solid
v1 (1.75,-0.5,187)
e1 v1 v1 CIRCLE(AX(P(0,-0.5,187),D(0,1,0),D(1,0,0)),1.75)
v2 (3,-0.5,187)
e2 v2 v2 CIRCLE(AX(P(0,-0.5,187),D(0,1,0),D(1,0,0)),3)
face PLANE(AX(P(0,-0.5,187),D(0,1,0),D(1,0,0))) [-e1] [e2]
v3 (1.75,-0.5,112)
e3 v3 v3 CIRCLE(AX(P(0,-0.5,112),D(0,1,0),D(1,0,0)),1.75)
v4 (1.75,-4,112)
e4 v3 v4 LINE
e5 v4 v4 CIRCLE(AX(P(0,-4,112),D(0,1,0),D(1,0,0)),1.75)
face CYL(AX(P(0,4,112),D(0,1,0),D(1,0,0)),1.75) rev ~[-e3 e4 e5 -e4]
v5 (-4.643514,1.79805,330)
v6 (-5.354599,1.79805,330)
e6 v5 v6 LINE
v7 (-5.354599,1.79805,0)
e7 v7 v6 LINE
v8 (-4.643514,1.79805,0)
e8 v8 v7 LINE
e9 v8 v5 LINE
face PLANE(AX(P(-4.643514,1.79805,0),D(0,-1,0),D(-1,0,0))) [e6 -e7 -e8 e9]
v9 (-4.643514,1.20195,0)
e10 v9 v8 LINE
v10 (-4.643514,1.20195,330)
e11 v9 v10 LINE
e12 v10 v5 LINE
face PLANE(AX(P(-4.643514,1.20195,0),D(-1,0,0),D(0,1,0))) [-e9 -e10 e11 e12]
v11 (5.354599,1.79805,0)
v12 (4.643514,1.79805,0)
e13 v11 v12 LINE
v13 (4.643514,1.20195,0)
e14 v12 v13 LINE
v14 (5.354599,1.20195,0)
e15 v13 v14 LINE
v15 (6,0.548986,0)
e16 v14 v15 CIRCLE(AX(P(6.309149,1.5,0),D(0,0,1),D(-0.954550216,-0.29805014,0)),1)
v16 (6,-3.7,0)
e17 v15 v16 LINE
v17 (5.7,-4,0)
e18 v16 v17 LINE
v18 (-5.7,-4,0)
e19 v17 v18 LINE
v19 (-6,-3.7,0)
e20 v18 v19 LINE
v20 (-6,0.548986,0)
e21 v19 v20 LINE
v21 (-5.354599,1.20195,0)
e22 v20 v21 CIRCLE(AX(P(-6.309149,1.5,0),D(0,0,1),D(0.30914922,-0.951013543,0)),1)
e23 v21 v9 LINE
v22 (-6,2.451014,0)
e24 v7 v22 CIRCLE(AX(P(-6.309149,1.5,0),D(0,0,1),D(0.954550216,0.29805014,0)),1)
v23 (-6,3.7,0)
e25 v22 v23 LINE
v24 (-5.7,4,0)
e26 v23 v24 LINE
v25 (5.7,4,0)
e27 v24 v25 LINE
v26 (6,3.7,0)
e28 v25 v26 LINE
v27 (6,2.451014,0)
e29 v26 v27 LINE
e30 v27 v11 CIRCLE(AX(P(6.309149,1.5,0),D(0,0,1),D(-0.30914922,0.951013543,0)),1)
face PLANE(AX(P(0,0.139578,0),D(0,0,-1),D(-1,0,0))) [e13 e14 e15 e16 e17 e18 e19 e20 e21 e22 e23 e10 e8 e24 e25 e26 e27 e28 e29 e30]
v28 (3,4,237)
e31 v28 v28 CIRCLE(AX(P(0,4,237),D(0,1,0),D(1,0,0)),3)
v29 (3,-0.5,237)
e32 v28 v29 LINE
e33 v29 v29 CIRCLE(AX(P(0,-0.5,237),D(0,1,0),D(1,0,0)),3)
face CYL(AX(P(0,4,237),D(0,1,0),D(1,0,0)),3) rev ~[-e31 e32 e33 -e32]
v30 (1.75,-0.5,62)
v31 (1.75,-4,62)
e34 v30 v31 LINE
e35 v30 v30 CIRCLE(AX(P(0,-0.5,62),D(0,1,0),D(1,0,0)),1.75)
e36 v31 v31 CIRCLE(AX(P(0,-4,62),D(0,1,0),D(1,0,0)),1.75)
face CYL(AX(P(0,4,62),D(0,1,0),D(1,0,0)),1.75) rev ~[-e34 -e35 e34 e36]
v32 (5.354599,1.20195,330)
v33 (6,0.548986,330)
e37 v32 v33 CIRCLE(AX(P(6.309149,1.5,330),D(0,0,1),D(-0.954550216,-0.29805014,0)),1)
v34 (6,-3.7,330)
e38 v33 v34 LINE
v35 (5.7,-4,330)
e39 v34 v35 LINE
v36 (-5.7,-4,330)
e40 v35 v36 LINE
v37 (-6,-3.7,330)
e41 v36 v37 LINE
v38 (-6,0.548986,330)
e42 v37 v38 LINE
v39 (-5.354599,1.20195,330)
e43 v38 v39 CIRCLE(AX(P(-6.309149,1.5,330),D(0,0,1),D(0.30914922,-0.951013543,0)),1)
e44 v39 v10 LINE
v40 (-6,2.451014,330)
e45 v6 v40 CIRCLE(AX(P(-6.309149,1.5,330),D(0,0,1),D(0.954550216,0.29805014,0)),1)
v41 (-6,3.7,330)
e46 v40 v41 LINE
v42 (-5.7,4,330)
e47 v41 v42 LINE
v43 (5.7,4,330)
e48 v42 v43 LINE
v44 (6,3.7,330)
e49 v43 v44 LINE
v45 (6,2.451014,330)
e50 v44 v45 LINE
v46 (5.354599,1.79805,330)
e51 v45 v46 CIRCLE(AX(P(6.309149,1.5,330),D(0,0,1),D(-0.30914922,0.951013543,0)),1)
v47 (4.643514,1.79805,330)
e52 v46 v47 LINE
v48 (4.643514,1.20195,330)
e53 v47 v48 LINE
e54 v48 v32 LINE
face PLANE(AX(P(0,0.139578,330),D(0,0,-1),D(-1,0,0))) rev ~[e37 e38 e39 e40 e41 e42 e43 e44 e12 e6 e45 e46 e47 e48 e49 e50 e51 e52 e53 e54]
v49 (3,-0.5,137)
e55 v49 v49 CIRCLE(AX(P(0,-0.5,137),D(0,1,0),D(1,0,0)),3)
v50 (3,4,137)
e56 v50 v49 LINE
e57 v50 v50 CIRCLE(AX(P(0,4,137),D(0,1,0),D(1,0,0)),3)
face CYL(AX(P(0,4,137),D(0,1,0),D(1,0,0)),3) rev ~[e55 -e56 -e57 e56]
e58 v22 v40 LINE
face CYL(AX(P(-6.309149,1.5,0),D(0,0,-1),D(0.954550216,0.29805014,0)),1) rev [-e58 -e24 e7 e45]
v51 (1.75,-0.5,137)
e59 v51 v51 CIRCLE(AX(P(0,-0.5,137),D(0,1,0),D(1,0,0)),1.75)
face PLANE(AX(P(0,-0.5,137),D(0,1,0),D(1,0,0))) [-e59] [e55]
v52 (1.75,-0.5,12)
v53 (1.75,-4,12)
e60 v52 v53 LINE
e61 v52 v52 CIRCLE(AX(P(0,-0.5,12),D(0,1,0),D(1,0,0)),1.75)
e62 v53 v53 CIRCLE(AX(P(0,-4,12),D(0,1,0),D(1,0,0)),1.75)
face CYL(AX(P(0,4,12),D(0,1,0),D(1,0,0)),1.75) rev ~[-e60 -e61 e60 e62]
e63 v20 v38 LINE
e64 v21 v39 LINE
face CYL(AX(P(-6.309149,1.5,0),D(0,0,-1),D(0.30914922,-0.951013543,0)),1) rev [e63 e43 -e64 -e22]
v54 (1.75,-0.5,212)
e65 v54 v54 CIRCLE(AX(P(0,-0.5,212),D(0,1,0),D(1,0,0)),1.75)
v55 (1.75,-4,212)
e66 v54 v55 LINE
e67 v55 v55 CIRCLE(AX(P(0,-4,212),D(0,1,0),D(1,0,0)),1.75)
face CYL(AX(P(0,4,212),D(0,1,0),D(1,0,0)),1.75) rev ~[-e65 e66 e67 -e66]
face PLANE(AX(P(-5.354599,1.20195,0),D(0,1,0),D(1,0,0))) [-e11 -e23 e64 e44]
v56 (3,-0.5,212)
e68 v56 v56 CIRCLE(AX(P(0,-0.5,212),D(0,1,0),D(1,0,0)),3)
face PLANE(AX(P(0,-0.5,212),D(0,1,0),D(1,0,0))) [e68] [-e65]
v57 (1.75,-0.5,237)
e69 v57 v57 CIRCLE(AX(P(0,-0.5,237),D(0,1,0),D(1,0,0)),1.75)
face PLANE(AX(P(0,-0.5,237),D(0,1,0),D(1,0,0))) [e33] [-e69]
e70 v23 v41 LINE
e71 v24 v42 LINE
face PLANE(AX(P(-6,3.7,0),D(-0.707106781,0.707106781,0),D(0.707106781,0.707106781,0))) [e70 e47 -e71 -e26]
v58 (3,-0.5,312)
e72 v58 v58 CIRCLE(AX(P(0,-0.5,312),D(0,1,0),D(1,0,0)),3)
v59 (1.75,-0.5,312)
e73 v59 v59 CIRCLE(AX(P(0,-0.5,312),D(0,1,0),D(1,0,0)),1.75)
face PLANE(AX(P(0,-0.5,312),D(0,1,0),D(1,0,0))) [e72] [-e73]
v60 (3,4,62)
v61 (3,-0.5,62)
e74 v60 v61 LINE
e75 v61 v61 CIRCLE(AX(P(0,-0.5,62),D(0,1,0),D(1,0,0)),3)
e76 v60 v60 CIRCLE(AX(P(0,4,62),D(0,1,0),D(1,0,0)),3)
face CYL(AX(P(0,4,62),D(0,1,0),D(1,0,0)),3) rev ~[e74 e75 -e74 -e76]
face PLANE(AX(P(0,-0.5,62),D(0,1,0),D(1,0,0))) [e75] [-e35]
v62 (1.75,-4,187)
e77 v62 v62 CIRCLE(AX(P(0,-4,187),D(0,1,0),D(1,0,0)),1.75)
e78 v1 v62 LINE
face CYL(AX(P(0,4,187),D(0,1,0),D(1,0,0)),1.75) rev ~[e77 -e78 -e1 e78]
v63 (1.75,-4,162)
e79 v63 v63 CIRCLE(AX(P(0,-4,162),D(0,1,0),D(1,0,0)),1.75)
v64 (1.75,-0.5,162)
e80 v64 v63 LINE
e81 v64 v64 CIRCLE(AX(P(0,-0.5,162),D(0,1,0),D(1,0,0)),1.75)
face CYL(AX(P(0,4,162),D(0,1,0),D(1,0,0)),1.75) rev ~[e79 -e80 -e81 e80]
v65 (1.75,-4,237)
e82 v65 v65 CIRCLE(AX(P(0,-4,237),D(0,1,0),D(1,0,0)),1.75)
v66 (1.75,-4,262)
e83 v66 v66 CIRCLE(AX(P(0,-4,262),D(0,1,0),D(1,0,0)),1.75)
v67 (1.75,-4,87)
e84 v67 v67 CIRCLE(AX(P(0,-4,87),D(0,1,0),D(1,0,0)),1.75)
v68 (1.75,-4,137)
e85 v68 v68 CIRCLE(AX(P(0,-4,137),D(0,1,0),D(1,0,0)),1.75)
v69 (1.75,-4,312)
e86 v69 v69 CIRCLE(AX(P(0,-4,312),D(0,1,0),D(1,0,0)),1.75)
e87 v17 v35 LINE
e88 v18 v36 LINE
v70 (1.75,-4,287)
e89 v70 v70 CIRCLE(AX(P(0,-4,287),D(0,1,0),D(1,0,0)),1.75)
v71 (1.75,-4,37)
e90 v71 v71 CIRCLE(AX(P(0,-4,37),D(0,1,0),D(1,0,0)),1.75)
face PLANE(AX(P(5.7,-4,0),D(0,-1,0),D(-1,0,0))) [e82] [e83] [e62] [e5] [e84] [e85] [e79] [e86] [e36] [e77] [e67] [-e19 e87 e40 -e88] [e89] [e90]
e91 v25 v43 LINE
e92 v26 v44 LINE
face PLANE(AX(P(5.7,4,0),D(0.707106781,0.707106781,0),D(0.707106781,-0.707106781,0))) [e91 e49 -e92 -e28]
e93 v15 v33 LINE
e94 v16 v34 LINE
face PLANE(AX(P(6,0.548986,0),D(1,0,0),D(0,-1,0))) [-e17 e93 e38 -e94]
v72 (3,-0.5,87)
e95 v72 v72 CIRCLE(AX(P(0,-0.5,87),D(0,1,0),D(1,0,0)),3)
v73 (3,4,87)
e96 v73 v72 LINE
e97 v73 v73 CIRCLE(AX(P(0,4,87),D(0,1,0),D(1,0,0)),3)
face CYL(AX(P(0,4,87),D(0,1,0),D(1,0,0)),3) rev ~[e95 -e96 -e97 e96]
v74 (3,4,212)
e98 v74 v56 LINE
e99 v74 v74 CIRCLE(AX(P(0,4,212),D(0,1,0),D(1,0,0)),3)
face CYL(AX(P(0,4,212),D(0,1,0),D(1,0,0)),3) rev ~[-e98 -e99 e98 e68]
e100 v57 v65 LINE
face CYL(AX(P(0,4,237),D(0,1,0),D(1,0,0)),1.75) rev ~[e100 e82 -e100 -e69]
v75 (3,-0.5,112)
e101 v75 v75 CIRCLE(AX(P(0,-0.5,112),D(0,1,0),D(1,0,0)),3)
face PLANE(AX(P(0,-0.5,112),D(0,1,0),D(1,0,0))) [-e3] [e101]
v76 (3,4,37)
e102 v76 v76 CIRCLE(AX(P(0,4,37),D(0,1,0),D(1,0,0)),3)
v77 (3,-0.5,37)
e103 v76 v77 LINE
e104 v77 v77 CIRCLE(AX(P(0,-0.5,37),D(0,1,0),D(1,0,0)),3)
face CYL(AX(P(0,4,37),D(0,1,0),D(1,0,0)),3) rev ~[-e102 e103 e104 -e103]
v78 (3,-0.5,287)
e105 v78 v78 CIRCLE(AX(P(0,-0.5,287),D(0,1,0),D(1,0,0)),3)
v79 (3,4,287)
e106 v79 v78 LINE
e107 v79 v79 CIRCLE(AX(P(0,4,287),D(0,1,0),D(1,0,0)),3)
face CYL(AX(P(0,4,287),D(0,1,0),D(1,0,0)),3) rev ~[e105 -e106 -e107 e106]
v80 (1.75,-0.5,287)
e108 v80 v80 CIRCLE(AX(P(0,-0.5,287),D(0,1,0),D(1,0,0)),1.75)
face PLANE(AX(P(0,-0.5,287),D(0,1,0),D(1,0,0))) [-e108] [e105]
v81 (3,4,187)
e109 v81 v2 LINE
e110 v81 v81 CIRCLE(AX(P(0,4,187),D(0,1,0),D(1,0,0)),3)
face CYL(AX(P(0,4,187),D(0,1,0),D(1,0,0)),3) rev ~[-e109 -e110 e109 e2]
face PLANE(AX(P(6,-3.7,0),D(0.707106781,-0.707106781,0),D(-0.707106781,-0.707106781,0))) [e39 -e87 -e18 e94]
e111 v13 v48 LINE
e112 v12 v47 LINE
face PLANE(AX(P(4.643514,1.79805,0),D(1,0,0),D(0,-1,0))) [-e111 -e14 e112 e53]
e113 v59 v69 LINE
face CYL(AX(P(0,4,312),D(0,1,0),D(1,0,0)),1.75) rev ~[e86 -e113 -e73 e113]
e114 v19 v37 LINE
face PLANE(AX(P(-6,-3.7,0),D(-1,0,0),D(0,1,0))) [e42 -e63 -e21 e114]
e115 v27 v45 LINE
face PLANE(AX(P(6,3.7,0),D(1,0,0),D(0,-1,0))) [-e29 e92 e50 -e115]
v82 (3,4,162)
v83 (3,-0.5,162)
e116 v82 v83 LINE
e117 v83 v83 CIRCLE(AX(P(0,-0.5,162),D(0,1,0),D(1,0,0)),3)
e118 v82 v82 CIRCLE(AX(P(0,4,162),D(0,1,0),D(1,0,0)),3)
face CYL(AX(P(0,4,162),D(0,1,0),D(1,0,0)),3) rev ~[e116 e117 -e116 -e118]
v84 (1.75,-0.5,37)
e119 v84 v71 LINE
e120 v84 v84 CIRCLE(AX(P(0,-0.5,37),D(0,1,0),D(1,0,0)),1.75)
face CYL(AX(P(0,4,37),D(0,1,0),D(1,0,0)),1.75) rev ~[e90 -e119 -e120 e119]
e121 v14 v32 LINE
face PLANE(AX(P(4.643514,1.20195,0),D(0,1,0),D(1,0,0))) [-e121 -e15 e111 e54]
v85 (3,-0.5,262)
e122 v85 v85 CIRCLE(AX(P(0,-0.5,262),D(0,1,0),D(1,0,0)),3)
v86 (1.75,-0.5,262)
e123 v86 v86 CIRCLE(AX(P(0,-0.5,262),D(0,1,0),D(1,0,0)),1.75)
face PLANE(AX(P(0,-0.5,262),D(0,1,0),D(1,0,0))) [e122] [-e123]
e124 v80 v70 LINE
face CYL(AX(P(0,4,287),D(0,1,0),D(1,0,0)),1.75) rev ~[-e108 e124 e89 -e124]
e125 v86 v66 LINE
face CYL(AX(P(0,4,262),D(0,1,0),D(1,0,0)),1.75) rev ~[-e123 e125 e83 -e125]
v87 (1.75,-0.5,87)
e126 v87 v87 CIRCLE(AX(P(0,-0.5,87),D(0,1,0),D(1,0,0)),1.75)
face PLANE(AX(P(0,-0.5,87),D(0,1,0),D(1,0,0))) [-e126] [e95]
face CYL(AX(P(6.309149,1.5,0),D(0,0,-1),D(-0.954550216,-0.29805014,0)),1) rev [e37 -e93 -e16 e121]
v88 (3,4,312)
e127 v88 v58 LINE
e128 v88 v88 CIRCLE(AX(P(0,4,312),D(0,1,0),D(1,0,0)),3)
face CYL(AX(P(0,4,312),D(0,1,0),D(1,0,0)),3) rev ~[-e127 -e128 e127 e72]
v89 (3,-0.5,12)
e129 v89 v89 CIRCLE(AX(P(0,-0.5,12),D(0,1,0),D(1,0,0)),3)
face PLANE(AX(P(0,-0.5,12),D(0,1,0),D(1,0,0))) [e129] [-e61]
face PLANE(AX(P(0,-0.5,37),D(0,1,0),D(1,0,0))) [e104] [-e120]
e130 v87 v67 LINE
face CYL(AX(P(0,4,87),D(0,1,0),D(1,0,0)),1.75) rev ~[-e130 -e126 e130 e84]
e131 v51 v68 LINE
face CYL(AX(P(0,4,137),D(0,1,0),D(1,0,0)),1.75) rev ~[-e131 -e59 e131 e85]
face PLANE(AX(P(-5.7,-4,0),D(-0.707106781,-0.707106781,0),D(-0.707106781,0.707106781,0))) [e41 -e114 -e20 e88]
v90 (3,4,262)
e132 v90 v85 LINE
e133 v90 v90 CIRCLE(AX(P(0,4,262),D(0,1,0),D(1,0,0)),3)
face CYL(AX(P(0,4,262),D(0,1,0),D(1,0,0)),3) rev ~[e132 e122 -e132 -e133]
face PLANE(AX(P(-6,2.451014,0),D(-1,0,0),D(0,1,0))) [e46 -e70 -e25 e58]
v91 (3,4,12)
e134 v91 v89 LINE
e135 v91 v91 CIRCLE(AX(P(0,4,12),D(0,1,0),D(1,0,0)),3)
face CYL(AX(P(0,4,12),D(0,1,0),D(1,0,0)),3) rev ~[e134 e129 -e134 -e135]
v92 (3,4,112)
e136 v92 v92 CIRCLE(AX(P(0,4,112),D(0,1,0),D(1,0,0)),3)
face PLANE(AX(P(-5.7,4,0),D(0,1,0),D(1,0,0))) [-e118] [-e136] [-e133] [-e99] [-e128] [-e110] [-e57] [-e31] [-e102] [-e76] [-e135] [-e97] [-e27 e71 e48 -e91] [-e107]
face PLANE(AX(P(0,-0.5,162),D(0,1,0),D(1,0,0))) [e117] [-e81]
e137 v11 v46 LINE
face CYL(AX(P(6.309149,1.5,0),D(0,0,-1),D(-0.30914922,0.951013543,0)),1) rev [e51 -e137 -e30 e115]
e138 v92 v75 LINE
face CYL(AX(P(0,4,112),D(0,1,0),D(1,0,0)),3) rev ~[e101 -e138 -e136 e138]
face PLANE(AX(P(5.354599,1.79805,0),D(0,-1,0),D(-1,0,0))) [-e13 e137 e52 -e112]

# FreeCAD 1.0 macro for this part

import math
import FreeCAD as App
import Part
import Sketcher

V = App.Vector
Q = App.Units.Quantity

doc = App.newDocument("Part")
body = doc.addObject("PartDesign::Body", "Body")

# Sketch on XY plane
sketch1 = body.newObject("Sketcher::SketchObject", "Sketch")
sketch1.AttachmentSupport = (doc.getObject("XY_Plane"), [""])
sketch1.MapMode = "FlatFace"
sketch1.addGeometry(Part.LineSegment(V(-5.7, 4, 0), V(-6, 3.7, 0)), False)
sketch1.addGeometry(Part.LineSegment(V(-6, 3.7, 0), V(-6, 2.45, 0)), False)
sketch1.addGeometry(Part.ArcOfCircle(Part.Circle(V(-6.31, 1.5, 0), V(0, 0, 1), 1), math.radians(17), math.radians(72)), False)
sketch1.addGeometry(Part.LineSegment(V(-5.35, 1.8, 0), V(-4.64, 1.8, 0)), False)
sketch1.addGeometry(Part.LineSegment(V(-4.64, 1.8, 0), V(-4.64, 1.2, 0)), False)
sketch1.addGeometry(Part.LineSegment(V(-4.64, 1.2, 0), V(-5.35, 1.2, 0)), False)
sketch1.addGeometry(Part.ArcOfCircle(Part.Circle(V(-6.31, 1.5, 0), V(0, 0, 1), 1), math.radians(-72), math.radians(-17)), False)
sketch1.addGeometry(Part.LineSegment(V(-6, 0.55, 0), V(-6, -3.7, 0)), False)
sketch1.addGeometry(Part.LineSegment(V(-6, -3.7, 0), V(-5.7, -4, 0)), False)
sketch1.addGeometry(Part.LineSegment(V(-5.7, -4, 0), V(5.7, -4, 0)), False)
sketch1.addGeometry(Part.LineSegment(V(5.7, -4, 0), V(6, -3.7, 0)), False)
sketch1.addGeometry(Part.LineSegment(V(6, -3.7, 0), V(6, 0.55, 0)), False)
sketch1.addGeometry(Part.ArcOfCircle(Part.Circle(V(6.31, 1.5, 0), V(0, 0, 1), 1), math.radians(-163), math.radians(-108)), False)
sketch1.addGeometry(Part.LineSegment(V(5.35, 1.2, 0), V(4.64, 1.2, 0)), False)
sketch1.addGeometry(Part.LineSegment(V(4.64, 1.2, 0), V(4.64, 1.8, 0)), False)
sketch1.addGeometry(Part.LineSegment(V(4.64, 1.8, 0), V(5.35, 1.8, 0)), False)
sketch1.addGeometry(Part.ArcOfCircle(Part.Circle(V(6.31, 1.5, 0), V(0, 0, 1), 1), math.radians(108), math.radians(163)), False)
sketch1.addGeometry(Part.LineSegment(V(6, 2.45, 0), V(6, 3.7, 0)), False)
sketch1.addGeometry(Part.LineSegment(V(6, 3.7, 0), V(5.7, 4, 0)), False)
sketch1.addGeometry(Part.LineSegment(V(5.7, 4, 0), V(-5.7, 4, 0)), False)
sketch1.addConstraint(Sketcher.Constraint("Coincident", 0, 2, 1, 1))
sketch1.addConstraint(Sketcher.Constraint("Coincident", 1, 2, 2, 2))
sketch1.addConstraint(Sketcher.Constraint("Coincident", 2, 1, 3, 1))
sketch1.addConstraint(Sketcher.Constraint("Coincident", 3, 2, 4, 1))
sketch1.addConstraint(Sketcher.Constraint("Coincident", 4, 2, 5, 1))
sketch1.addConstraint(Sketcher.Constraint("Coincident", 5, 2, 6, 2))
sketch1.addConstraint(Sketcher.Constraint("Coincident", 6, 1, 7, 1))
sketch1.addConstraint(Sketcher.Constraint("Coincident", 7, 2, 8, 1))
sketch1.addConstraint(Sketcher.Constraint("Coincident", 8, 2, 9, 1))
sketch1.addConstraint(Sketcher.Constraint("Coincident", 9, 2, 10, 1))
sketch1.addConstraint(Sketcher.Constraint("Coincident", 10, 2, 11, 1))
sketch1.addConstraint(Sketcher.Constraint("Coincident", 11, 2, 12, 2))
sketch1.addConstraint(Sketcher.Constraint("Coincident", 12, 1, 13, 1))
sketch1.addConstraint(Sketcher.Constraint("Coincident", 13, 2, 14, 1))
sketch1.addConstraint(Sketcher.Constraint("Coincident", 14, 2, 15, 1))
sketch1.addConstraint(Sketcher.Constraint("Coincident", 15, 2, 16, 2))
sketch1.addConstraint(Sketcher.Constraint("Coincident", 16, 1, 17, 1))
sketch1.addConstraint(Sketcher.Constraint("Coincident", 17, 2, 18, 1))
sketch1.addConstraint(Sketcher.Constraint("Coincident", 18, 2, 19, 1))
sketch1.addConstraint(Sketcher.Constraint("Coincident", 19, 2, 0, 1))
sketch1.addConstraint(Sketcher.Constraint("Vertical", 1))
sketch1.addConstraint(Sketcher.Constraint("Horizontal", 3))
sketch1.addConstraint(Sketcher.Constraint("Vertical", 4))
sketch1.addConstraint(Sketcher.Constraint("Horizontal", 5))
sketch1.addConstraint(Sketcher.Constraint("Vertical", 7))
sketch1.addConstraint(Sketcher.Constraint("Horizontal", 9))
sketch1.addConstraint(Sketcher.Constraint("Vertical", 11))
sketch1.addConstraint(Sketcher.Constraint("Horizontal", 13))
sketch1.addConstraint(Sketcher.Constraint("Vertical", 14))
sketch1.addConstraint(Sketcher.Constraint("Horizontal", 15))
sketch1.addConstraint(Sketcher.Constraint("Vertical", 17))
sketch1.addConstraint(Sketcher.Constraint("Horizontal", 19))
sketch1.addConstraint(Sketcher.Constraint("Coincident", 6, 3, 2, 3))
sketch1.addConstraint(Sketcher.Constraint("Coincident", 16, 3, 12, 3))
sketch1.addConstraint(Sketcher.Constraint("Equal", 2, 6))
sketch1.addConstraint(Sketcher.Constraint("Equal", 6, 12))
sketch1.addConstraint(Sketcher.Constraint("Equal", 12, 16))
sketch1.addConstraint(Sketcher.Constraint("Symmetric", 0, 2, 10, 2, -1, 1))
sketch1.addConstraint(Sketcher.Constraint("Symmetric", 7, 2, 17, 2, -1, 1))
sketch1.addConstraint(Sketcher.Constraint("Symmetric", 8, 2, 18, 2, -1, 1))
sketch1.addConstraint(Sketcher.Constraint("Symmetric", 2, 3, 12, 3, -2))
sketch1.addConstraint(Sketcher.Constraint("Symmetric", 7, 2, 10, 2, -2))
sketch1.addConstraint(Sketcher.Constraint("Symmetric", 4, 2, 13, 2, -2))
sketch1.addConstraint(Sketcher.Constraint("Perpendicular", 0, 8))
sketch1.addConstraint(Sketcher.Constraint("Perpendicular", 8, 10))
sketch1.addConstraint(Sketcher.Constraint("Horizontal", 3, 2, 14, 2))
sketch1.addConstraint(Sketcher.Constraint("Vertical", 2, 1, 5, 2))
sketch1.addConstraint(Sketcher.Constraint("Vertical", 9, 2, 18, 2))
sketch1.addConstraint(Sketcher.Constraint("Radius", 2, Q("1 mm")))
sketch1.addConstraint(Sketcher.Constraint("DistanceX", 9, 1, 9, 2, Q("11.4 mm")))
sketch1.addConstraint(Sketcher.Constraint("DistanceX", 0, 2, -1, 1, Q("6 mm")))
sketch1.addConstraint(Sketcher.Constraint("DistanceY", 8, 2, -1, 1, Q("4 mm")))
sketch1.addConstraint(Sketcher.Constraint("DistanceY", -1, 1, 2, 3, Q("1.5 mm")))
sketch1.addConstraint(Sketcher.Constraint("DistanceY", 4, 2, 4, 1, Q("0.5961 mm")))
sketch1.addConstraint(Sketcher.Constraint("DistanceX", 2, 1, -1, 1, Q("5.354599 mm")))
sketch1.addConstraint(Sketcher.Constraint("DistanceX", 3, 1, 3, 2, Q("0.711085 mm")))
pad1 = body.newObject("PartDesign::Pad", "Pad")
pad1.Profile = sketch1
pad1.Length = 330

# Sketch on XZ plane
sketch2 = body.newObject("Sketcher::SketchObject", "Sketch001")
sketch2.AttachmentSupport = (doc.getObject("XZ_Plane"), [""])
sketch2.MapMode = "FlatFace"
sketch2.AttachmentOffset = App.Placement(V(0, 0, -4), App.Rotation())
sketch2.addGeometry(Part.Circle(V(0, 12, 0), V(0, 0, 1), 3), False)
sketch2.addGeometry(Part.Circle(V(0, 12, 0), V(0, 0, 1), 1.8), False)
sketch2.addConstraint(Sketcher.Constraint("Coincident", 1, 3, 0, 3))
sketch2.addConstraint(Sketcher.Constraint("PointOnObject", 0, 3, -2))
sketch2.addConstraint(Sketcher.Constraint("Diameter", 0, Q("6 mm")))
sketch2.addConstraint(Sketcher.Constraint("Diameter", 1, Q("3.5 mm")))
sketch2.addConstraint(Sketcher.Constraint("DistanceY", -1, 1, 0, 3, Q("12 mm")))
pocket1 = body.newObject("PartDesign::Pocket", "Pocket")
pocket1.Profile = sketch2
pocket1.Length = 4.5
pocket1.Reversed = True

# Sketch on XZ plane
sketch3 = body.newObject("Sketcher::SketchObject", "Sketch002")
sketch3.AttachmentSupport = (doc.getObject("XZ_Plane"), [""])
sketch3.MapMode = "FlatFace"
sketch3.AttachmentOffset = App.Placement(V(0, 0, -4), App.Rotation())
sketch3.addGeometry(Part.Circle(V(0, 12, 0), V(0, 0, 1), 1.8), False)
sketch3.addConstraint(Sketcher.Constraint("PointOnObject", 0, 3, -2))
sketch3.addConstraint(Sketcher.Constraint("Diameter", 0, Q("3.5 mm")))
sketch3.addConstraint(Sketcher.Constraint("DistanceY", -1, 1, 0, 3, Q("12 mm")))
pocket2 = body.newObject("PartDesign::Pocket", "Pocket001")
pocket2.Profile = sketch3
pocket2.Type = "ThroughAll"
pocket2.Reversed = True
doc.recompute()

linearpattern = body.newObject("PartDesign::LinearPattern", "LinearPattern")
linearpattern.Originals = [pocket1, pocket2]
linearpattern.Direction = (doc.getObject("Z_Axis"), [""])
linearpattern.Mode = "offset"
linearpattern.Offset = 25
linearpattern.Occurrences = 16
body.Tip = linearpattern

doc.recompute()
